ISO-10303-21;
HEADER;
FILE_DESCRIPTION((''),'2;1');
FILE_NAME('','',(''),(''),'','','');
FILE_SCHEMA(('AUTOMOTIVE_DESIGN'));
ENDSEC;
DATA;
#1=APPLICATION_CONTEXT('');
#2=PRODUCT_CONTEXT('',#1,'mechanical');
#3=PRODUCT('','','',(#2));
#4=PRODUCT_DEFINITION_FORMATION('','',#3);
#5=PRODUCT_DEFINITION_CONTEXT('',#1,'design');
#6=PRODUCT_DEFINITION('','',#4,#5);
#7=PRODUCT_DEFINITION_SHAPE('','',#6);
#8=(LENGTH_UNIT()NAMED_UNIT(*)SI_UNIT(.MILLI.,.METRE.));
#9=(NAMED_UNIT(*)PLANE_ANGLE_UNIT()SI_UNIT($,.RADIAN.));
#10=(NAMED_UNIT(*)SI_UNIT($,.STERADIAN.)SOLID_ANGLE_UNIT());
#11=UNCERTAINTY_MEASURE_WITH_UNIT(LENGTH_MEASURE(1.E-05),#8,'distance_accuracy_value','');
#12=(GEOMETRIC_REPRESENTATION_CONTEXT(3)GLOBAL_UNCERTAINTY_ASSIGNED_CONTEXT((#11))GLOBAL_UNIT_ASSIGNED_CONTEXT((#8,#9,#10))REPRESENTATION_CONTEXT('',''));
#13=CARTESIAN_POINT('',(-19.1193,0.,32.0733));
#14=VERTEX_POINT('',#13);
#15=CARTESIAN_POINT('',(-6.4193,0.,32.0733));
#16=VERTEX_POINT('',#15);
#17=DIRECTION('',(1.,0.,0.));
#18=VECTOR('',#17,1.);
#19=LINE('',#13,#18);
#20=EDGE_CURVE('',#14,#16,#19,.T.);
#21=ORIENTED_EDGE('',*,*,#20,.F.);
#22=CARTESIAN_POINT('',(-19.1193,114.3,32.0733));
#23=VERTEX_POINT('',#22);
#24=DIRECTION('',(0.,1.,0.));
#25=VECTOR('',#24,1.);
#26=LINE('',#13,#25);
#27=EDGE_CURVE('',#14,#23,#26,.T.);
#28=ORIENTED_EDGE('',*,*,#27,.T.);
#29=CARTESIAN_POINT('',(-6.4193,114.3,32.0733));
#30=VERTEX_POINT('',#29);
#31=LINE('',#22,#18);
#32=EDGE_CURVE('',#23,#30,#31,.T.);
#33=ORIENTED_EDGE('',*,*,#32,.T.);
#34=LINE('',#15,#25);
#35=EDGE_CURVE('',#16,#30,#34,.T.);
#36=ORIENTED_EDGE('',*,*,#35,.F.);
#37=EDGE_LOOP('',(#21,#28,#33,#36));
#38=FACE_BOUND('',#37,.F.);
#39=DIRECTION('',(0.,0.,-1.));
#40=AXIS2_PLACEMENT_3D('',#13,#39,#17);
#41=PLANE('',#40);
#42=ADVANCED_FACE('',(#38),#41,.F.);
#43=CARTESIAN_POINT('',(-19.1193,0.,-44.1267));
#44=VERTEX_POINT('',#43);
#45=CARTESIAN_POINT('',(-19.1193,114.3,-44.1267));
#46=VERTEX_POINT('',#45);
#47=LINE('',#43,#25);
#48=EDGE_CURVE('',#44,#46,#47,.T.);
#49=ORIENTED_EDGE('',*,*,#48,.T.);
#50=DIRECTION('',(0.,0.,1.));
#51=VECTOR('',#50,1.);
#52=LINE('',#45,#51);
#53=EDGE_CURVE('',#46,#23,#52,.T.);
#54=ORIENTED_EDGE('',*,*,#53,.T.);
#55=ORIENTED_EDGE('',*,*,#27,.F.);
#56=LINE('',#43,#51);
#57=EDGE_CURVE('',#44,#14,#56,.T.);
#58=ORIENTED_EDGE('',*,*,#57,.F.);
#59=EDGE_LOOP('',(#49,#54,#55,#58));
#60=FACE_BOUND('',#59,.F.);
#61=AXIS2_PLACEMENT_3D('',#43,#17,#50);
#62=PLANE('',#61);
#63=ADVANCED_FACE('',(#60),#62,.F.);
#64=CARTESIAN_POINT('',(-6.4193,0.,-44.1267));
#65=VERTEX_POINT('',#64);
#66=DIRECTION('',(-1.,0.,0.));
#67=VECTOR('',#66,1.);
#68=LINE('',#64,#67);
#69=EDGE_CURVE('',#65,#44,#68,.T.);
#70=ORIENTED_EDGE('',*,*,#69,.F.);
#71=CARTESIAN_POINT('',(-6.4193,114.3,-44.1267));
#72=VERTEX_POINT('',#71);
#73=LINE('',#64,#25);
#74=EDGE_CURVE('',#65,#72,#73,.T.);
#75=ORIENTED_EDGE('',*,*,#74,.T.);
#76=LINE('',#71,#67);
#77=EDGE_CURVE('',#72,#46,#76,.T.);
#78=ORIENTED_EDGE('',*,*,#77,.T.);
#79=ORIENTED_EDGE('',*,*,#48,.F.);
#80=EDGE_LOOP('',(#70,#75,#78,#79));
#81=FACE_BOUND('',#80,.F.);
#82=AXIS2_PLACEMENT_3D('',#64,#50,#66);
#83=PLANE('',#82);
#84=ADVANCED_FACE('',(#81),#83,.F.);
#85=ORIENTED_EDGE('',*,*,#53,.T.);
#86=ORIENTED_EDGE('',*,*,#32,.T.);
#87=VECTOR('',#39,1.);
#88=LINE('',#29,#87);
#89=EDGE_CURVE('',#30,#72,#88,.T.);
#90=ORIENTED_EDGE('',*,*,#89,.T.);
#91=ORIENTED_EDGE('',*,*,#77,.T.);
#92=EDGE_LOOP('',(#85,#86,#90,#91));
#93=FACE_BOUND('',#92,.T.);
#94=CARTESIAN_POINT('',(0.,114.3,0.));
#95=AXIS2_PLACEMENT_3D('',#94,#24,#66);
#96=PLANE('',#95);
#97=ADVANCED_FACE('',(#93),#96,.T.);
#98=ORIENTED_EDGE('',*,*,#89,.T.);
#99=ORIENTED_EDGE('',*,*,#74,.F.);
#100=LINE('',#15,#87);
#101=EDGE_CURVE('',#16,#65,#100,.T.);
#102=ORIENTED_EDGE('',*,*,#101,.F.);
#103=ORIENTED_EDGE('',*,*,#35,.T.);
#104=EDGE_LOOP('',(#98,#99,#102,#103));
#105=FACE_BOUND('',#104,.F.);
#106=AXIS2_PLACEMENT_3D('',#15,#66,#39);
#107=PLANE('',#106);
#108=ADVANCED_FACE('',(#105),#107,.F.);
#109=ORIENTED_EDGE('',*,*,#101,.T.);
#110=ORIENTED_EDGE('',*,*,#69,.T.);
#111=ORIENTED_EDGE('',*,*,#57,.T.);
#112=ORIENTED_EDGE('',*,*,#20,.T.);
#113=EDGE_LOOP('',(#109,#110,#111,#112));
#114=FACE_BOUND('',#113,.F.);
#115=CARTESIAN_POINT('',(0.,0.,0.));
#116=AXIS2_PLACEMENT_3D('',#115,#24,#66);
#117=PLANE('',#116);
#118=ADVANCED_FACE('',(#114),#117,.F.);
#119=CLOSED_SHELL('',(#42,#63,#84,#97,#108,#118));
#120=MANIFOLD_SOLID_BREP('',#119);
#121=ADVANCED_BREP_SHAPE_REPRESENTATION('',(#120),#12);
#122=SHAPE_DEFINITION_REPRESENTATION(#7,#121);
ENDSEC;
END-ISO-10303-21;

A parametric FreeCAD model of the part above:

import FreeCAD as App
import Part
import Sketcher
Q = App.Units.Quantity

doc = App.newDocument("Part")
body = doc.addObject("PartDesign::Body", "Body")

# Sketch on XZ plane
sketch1 = body.newObject("Sketcher::SketchObject", "Sketch")
sketch1.AttachmentSupport = (doc.getObject("XZ_Plane"), [""])
sketch1.MapMode = "FlatFace"
sketch1.addGeometry([
    Part.LineSegment(App.Vector(-19, -44, 0), App.Vector(-19, 32, 0)),
    Part.LineSegment(App.Vector(-19, 32, 0), App.Vector(-6, 32, 0)),
    Part.LineSegment(App.Vector(-6, 32, 0), App.Vector(-6, -44, 0)),
    Part.LineSegment(App.Vector(-6, -44, 0), App.Vector(-19, -44, 0)),
], False)
sketch1.addConstraint([
    Sketcher.Constraint("Coincident", 0, 2, 1, 1),
    Sketcher.Constraint("Coincident", 1, 2, 2, 1),
    Sketcher.Constraint("Coincident", 2, 2, 3, 1),
    Sketcher.Constraint("Coincident", 3, 2, 0, 1),
    Sketcher.Constraint("Vertical", 0),
    Sketcher.Constraint("Horizontal", 1),
    Sketcher.Constraint("Vertical", 2),
    Sketcher.Constraint("Horizontal", 3),
    Sketcher.Constraint("DistanceY", 0, 1, 0, 2, Q("3 in")),
    Sketcher.Constraint("DistanceX", 1, 1, 1, 2, Q("0.5 in")),
    Sketcher.Constraint("DistanceX", 0, 2, -1, 1, 19.1193),
    Sketcher.Constraint("DistanceY", -1, 1, 0, 2, 32.0733),
])
pad1 = body.newObject("PartDesign::Pad", "Pad")
pad1.Profile = sketch1
pad1.Length = Q("4.5 in")
pad1.Reversed = True

doc.recompute()
